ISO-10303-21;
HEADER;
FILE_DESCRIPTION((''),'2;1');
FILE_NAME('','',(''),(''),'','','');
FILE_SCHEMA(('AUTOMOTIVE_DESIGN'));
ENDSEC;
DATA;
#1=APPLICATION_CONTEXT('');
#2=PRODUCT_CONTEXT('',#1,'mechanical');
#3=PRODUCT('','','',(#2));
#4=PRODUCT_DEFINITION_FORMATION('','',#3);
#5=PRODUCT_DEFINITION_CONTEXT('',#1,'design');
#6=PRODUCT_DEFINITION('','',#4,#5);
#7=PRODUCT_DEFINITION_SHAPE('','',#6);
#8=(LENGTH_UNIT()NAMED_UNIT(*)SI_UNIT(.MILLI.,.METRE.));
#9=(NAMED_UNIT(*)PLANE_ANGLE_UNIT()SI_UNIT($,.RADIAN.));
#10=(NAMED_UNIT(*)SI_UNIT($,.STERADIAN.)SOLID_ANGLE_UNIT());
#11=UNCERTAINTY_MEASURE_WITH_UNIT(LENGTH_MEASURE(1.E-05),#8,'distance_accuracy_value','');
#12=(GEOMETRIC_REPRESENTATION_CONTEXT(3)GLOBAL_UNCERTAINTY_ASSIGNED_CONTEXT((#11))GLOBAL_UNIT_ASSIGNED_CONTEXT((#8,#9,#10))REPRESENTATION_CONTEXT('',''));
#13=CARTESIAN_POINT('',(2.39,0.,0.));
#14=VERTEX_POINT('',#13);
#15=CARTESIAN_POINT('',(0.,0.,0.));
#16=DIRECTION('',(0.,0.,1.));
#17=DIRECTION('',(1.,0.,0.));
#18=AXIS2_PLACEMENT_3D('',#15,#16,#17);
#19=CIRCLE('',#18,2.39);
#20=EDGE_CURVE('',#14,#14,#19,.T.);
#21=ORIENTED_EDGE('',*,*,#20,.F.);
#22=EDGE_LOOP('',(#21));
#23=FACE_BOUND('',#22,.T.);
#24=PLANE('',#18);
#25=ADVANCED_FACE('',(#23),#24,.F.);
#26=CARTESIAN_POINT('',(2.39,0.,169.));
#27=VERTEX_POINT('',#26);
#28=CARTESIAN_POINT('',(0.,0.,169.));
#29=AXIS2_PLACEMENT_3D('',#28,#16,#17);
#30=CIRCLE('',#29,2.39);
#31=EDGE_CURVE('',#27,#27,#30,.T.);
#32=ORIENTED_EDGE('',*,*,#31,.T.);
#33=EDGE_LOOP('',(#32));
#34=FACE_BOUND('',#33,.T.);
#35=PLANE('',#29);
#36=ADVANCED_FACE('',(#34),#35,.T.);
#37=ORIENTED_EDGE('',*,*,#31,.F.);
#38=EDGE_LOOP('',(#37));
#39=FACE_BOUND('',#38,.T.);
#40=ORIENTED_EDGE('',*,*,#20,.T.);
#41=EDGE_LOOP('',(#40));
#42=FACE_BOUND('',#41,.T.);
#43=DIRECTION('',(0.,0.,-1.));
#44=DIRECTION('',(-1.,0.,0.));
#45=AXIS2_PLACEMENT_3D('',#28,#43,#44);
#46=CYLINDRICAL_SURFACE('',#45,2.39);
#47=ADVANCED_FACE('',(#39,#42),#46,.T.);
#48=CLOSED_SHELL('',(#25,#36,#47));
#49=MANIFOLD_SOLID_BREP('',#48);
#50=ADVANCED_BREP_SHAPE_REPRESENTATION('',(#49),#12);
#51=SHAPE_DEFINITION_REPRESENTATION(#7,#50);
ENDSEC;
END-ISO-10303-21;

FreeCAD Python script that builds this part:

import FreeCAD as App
import Part
import Sketcher
from FreeCAD import Vector
Q = App.Units.Quantity

doc = App.newDocument("Part")
body = doc.addObject("PartDesign::Body", "Body")

# Sketch on XY plane
sketch1 = body.newObject("Sketcher::SketchObject", "Sketch")
sketch1.AttachmentSupport = (doc.getObject("XY_Plane"), [""])
sketch1.MapMode = "FlatFace"
sketch1.addGeometry(Part.Circle(Vector(0, 0, 0), Vector(0, 0, 1), 2.4), False)
sketch1.addConstraint([
    Sketcher.Constraint("Coincident", 0, 3, -1, 1),
    Sketcher.Constraint("Diameter", 0, Q("4.78 mm")),
])
pad1 = body.newObject("PartDesign::Pad", "Pad")
pad1.Profile = sketch1
pad1.Length = 169

doc.recompute()
